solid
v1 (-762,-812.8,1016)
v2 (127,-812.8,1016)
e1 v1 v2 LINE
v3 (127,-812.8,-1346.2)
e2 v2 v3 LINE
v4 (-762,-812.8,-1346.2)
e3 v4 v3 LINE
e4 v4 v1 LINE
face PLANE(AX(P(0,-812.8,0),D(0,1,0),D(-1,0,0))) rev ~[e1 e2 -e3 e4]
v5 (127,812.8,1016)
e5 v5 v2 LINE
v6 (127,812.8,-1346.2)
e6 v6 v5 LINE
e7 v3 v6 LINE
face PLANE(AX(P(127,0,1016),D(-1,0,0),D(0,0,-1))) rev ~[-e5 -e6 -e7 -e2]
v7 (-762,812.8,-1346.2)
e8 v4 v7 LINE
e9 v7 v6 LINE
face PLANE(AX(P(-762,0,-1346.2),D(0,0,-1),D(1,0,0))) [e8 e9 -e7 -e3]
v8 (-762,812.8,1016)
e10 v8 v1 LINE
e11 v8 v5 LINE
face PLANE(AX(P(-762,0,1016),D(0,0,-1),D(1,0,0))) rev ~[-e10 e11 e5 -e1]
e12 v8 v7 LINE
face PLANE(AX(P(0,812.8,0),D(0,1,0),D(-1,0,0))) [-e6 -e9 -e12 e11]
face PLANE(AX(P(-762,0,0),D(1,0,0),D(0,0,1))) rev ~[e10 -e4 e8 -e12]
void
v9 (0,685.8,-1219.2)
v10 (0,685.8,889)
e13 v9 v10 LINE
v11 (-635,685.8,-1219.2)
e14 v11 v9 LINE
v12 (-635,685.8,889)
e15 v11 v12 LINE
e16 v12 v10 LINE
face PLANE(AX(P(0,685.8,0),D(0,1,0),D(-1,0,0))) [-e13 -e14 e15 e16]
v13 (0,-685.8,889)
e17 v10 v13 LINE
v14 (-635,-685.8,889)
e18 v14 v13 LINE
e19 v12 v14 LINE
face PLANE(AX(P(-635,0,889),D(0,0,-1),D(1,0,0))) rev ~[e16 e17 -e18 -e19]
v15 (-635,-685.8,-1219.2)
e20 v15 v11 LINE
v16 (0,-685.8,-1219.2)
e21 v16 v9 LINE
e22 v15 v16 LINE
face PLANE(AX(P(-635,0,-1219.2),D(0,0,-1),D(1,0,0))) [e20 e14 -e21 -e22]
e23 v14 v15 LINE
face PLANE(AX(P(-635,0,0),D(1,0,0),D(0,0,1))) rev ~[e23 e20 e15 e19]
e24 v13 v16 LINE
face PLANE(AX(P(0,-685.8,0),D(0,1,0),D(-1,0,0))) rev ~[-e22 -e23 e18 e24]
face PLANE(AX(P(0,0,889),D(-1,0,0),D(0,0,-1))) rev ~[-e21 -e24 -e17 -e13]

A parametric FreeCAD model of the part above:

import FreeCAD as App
import Part
import Sketcher
from FreeCAD import Vector
Q = App.Units.Quantity


def add_polygon(sketch, points):
    """Adds a closed chain of lines whose ends are joined by coincident constraints."""
    first, n = sketch.GeometryCount, len(points)
    for a, b in zip(points, points[1:] + points[:1]):
        sketch.addGeometry(Part.LineSegment(App.Vector(*a, 0), App.Vector(*b, 0)), False)
    for i in range(n):
        sketch.addConstraint(Sketcher.Constraint("Coincident", first + i, 2, first + (i + 1) % n, 1))

doc = App.newDocument("Part")
params = doc.addObject("Spreadsheet::Sheet", "Params")
for row, (alias, value) in enumerate([
    ("sketch1_width", "35 in"),
    ("pad1_length", "64 in"),
    ("sketch2_width", "25 in"),
    ("pocket1_length", "54 in"),
], start=1):
    params.set(f"A{row}", alias)
    params.set(f"B{row}", "=" + value)
    params.setAlias(f"B{row}", alias)

body = doc.addObject("PartDesign::Body", "Body")

# Sketch on XZ plane
sketch1 = body.newObject("Sketcher::SketchObject", "Sketch")
sketch1.AttachmentSupport = (doc.getObject("XZ_Plane"), [""])
sketch1.MapMode = "FlatFace"
add_polygon(sketch1, [(127, 1016), (127, -1346.2), (-762, -1346.2), (-762, 1016)])  # lines 0-3
sketch1.addConstraint(Sketcher.Constraint("Vertical", 0))
sketch1.addConstraint(Sketcher.Constraint("Horizontal", 1))
sketch1.addConstraint(Sketcher.Constraint("Vertical", 2))
sketch1.addConstraint(Sketcher.Constraint("Horizontal", 3))
sketch1.addConstraint(Sketcher.Constraint("DistanceX", 1, 2, 1, 1, Q("35 in")))
sketch1.addConstraint(Sketcher.Constraint("DistanceX", -1, 1, 0, 2, Q("5 in")))
sketch1.addConstraint(Sketcher.Constraint("DistanceY", 0, 2, -1, 1, Q("53 in")))
sketch1.addConstraint(Sketcher.Constraint("DistanceY", -1, 1, 2, 2, Q("40 in")))
sketch1.setExpression("Constraints[8]", "Params.sketch1_width")
pad1 = body.newObject("PartDesign::Pad", "Pad")
pad1.Profile = sketch1
pad1.setExpression("Length", "Params.pad1_length")
pad1.Midplane = True

# Sketch on XZ plane
sketch2 = body.newObject("Sketcher::SketchObject", "Sketch001")
sketch2.AttachmentSupport = (doc.getObject("XZ_Plane"), [""])
sketch2.MapMode = "FlatFace"
add_polygon(sketch2, [(0, 889), (0, -1219.2), (-635, -1219.2), (-635, 889)])  # lines 0-3
sketch2.addConstraint(Sketcher.Constraint("Vertical", 0))
sketch2.addConstraint(Sketcher.Constraint("Horizontal", 1))
sketch2.addConstraint(Sketcher.Constraint("Vertical", 2))
sketch2.addConstraint(Sketcher.Constraint("Horizontal", 3))
sketch2.addConstraint(Sketcher.Constraint("PointOnObject", 0, 2, -2))
sketch2.addConstraint(Sketcher.Constraint("DistanceX", 1, 2, 1, 1, Q("25 in")))
sketch2.addConstraint(Sketcher.Constraint("DistanceY", 0, 2, -1, 1, Q("48 in")))
sketch2.addConstraint(Sketcher.Constraint("DistanceY", -1, 1, 2, 2, Q("35 in")))
sketch2.setExpression("Constraints[9]", "Params.sketch2_width")
pocket1 = body.newObject("PartDesign::Pocket", "Pocket")
pocket1.Profile = sketch2
pocket1.setExpression("Length", "Params.pocket1_length")
pocket1.Midplane = True

doc.recompute()
